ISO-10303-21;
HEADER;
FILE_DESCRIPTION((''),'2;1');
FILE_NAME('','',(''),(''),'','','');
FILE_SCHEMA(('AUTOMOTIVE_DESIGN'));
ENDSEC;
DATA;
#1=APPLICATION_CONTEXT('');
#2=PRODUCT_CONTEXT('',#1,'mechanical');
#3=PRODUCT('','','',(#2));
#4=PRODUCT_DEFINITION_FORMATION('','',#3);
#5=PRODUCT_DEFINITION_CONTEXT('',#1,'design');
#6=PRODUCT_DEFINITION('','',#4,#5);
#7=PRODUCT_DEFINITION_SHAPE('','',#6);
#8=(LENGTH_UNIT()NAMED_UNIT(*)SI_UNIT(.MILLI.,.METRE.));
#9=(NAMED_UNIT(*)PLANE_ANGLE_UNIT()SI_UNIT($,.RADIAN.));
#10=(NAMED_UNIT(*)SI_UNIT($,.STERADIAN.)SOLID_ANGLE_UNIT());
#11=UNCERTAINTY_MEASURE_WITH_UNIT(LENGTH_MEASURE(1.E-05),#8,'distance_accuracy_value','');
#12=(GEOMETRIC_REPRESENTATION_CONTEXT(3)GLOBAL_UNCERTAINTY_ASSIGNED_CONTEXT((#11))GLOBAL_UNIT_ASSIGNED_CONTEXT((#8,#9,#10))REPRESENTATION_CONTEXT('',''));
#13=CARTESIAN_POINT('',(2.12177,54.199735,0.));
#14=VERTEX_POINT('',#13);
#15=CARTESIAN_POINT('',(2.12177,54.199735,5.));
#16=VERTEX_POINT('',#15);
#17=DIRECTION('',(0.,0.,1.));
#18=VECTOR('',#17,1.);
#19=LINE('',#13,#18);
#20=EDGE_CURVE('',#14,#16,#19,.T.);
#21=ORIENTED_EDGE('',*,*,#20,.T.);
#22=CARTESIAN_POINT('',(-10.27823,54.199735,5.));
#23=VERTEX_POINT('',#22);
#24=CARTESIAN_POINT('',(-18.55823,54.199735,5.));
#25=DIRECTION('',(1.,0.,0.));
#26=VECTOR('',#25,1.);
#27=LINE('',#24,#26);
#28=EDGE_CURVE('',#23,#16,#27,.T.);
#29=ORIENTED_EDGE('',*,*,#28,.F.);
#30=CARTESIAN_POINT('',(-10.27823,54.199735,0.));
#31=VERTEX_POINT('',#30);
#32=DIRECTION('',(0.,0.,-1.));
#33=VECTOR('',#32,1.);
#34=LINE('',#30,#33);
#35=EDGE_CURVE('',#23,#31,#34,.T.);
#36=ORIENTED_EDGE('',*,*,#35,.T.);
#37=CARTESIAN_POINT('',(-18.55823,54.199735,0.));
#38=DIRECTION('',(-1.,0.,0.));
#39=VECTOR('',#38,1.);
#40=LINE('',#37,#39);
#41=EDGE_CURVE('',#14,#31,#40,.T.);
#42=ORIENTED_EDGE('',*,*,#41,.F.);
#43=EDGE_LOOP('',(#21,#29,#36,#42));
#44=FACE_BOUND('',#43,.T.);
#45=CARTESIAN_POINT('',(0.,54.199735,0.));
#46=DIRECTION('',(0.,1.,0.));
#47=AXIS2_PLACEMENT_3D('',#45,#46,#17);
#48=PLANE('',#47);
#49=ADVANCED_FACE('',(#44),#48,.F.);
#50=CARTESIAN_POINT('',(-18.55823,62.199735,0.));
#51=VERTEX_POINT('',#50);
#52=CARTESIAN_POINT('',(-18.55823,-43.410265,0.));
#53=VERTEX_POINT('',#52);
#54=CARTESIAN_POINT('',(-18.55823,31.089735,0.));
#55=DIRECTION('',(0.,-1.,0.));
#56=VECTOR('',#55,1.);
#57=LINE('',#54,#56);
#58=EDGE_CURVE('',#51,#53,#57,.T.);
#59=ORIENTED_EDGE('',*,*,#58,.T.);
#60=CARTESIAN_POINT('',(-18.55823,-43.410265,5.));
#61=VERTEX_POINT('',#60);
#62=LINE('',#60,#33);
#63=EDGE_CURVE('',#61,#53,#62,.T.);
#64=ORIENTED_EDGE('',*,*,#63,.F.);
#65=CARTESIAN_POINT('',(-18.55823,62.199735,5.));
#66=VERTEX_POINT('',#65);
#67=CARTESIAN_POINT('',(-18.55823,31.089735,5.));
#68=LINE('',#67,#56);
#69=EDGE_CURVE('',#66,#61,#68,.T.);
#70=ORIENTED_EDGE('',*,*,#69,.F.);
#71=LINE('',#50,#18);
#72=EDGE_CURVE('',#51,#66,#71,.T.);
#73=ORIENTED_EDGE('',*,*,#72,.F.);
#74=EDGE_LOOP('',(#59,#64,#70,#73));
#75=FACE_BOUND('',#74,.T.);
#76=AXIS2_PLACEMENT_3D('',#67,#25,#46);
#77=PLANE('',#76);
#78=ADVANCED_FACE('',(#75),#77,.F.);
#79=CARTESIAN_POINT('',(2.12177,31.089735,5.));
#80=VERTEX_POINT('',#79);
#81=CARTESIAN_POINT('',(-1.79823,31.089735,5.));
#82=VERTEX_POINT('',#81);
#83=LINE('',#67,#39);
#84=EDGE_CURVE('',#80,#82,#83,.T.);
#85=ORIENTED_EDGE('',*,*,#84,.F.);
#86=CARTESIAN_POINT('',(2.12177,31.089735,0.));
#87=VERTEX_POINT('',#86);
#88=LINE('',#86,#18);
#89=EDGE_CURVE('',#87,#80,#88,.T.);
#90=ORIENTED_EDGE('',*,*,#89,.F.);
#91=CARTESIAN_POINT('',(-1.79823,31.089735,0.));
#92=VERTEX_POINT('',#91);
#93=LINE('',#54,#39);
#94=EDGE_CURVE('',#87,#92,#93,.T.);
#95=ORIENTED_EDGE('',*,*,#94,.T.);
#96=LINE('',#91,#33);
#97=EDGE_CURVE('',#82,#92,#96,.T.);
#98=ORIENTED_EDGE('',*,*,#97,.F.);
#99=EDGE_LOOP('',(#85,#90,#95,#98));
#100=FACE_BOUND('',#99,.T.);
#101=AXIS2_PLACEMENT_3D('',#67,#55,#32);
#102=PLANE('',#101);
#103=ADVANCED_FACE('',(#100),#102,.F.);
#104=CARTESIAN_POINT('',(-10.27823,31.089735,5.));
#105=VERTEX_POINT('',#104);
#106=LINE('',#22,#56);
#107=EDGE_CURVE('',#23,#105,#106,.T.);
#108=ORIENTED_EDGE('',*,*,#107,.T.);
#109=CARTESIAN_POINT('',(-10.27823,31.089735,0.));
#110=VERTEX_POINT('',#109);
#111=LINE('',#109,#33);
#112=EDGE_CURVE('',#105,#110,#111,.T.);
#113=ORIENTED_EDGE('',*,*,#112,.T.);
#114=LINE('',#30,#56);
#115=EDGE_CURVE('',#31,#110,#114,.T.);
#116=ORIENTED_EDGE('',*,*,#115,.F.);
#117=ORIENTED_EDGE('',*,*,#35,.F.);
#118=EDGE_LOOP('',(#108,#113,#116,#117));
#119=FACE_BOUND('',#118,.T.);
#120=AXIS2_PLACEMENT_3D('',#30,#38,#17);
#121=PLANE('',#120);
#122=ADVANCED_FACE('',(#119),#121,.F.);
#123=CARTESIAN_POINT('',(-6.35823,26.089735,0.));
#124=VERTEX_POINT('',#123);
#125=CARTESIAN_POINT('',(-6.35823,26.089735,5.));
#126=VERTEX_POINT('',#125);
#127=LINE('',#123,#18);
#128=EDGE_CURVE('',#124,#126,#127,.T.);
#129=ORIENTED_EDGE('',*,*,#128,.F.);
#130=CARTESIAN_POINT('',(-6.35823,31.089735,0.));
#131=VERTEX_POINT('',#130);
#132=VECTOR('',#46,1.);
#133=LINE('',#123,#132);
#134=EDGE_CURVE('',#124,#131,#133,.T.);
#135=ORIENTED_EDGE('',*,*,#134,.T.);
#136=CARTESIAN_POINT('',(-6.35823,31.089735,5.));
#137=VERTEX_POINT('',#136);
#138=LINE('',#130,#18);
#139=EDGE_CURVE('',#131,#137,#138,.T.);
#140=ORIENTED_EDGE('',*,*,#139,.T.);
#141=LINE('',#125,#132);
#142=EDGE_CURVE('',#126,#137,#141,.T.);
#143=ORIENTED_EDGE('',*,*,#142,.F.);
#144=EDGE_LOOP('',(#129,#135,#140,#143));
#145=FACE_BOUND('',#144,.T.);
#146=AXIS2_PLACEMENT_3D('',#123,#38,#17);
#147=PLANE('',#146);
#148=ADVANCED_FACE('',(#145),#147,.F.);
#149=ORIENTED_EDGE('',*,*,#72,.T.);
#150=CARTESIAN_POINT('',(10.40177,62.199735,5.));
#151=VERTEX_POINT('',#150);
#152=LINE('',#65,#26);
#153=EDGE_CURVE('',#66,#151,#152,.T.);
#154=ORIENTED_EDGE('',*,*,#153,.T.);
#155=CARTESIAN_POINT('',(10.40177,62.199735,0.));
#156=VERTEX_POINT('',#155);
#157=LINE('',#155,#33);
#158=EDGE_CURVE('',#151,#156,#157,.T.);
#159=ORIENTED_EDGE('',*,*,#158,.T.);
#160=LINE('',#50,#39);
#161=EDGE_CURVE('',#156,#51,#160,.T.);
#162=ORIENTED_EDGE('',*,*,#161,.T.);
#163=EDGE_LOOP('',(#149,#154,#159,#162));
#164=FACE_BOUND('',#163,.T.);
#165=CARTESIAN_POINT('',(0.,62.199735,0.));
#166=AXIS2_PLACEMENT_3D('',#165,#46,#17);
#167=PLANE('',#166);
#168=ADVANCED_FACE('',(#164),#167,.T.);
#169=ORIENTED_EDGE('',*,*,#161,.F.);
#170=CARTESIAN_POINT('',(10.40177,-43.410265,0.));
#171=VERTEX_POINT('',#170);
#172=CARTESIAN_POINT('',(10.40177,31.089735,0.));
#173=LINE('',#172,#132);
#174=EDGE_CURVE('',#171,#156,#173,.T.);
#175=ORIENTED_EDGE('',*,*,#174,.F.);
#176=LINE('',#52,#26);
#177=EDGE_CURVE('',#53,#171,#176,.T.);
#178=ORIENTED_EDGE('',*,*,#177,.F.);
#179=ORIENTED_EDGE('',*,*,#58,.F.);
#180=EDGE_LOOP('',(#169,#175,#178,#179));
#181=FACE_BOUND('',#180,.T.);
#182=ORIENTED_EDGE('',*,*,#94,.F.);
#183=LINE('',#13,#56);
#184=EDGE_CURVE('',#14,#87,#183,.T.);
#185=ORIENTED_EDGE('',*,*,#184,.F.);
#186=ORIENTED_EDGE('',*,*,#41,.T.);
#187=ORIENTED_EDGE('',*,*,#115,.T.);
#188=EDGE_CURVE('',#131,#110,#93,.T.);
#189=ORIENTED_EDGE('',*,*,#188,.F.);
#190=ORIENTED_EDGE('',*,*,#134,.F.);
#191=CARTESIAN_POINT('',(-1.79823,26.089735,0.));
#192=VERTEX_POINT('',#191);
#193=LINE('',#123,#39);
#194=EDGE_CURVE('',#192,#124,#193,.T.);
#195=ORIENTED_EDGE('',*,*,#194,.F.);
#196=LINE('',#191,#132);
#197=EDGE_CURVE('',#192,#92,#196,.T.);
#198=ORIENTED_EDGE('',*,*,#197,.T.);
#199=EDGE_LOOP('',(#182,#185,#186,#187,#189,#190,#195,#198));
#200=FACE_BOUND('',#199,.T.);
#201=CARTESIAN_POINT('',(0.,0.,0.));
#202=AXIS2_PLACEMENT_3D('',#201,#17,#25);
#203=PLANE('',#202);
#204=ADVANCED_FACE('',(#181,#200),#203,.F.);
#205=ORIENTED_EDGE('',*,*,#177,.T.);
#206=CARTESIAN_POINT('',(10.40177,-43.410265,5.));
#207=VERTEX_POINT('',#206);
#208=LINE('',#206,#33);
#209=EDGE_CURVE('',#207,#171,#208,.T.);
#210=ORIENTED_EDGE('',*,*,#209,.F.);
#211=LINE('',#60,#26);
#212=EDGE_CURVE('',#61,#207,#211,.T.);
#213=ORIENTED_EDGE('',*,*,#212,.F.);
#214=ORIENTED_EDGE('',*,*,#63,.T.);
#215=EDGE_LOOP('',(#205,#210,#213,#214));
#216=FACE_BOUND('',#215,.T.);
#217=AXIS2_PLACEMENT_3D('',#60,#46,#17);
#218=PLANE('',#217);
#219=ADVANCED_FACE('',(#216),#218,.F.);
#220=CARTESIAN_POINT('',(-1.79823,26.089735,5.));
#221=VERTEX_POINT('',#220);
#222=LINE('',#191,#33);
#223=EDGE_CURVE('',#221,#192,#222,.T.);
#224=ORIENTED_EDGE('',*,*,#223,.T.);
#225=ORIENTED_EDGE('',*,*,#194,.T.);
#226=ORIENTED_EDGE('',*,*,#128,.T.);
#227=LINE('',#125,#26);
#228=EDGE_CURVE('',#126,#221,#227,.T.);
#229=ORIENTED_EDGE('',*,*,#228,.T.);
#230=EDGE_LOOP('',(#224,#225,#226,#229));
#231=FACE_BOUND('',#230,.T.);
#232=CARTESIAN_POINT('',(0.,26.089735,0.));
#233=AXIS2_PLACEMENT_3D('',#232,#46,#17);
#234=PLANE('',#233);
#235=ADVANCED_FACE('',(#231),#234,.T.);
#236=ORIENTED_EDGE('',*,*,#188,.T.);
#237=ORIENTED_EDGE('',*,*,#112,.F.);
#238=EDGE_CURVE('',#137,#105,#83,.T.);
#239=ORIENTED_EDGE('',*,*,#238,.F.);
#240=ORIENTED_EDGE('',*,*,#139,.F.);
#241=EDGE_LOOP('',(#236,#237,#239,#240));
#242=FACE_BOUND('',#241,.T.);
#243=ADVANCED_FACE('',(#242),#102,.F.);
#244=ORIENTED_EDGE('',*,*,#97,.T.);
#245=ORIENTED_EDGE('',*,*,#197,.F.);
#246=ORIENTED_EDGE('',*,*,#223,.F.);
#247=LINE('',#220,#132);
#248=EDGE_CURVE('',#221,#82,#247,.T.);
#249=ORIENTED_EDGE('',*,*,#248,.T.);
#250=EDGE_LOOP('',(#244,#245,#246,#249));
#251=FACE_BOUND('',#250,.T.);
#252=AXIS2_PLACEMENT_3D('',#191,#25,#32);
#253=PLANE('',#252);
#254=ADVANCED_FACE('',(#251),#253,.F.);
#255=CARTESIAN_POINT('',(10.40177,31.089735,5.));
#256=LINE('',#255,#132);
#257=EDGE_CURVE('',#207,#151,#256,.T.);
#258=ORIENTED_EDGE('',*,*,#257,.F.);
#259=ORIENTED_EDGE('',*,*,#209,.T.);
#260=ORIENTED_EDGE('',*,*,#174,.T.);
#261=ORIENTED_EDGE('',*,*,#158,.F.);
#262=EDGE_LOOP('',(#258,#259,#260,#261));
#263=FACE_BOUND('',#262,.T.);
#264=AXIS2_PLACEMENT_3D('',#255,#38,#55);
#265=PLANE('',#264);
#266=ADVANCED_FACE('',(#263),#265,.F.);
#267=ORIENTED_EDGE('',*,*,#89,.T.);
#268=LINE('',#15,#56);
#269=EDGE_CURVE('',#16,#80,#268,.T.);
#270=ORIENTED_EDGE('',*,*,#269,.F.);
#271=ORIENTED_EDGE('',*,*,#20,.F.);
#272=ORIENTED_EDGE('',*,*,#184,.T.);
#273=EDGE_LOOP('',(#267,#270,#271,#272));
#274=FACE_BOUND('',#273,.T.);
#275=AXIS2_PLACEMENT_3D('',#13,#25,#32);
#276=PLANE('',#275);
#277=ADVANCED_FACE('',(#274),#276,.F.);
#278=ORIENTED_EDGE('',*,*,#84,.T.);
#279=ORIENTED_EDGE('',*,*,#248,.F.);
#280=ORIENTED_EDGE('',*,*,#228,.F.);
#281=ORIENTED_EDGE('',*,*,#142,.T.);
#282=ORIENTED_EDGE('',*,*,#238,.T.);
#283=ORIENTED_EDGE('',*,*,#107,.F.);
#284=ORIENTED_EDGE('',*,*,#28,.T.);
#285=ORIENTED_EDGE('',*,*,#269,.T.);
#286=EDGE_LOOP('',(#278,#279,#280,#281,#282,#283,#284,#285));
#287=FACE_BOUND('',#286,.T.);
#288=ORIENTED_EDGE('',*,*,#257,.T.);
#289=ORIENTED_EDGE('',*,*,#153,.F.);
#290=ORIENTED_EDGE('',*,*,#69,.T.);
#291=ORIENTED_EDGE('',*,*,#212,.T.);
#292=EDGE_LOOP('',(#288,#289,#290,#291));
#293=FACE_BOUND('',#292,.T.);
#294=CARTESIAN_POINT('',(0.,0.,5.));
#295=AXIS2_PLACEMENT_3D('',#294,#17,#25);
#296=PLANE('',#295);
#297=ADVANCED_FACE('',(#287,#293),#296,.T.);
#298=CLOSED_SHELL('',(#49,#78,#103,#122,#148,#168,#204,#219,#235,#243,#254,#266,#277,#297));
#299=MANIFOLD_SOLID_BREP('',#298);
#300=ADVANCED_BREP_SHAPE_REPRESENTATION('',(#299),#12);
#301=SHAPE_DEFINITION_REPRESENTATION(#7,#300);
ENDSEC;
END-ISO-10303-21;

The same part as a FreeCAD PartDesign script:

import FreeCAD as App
import Part
import Sketcher

V = App.Vector
Q = App.Units.Quantity


def add_polygon(sketch, points):
    """Adds a closed chain of lines whose ends are joined by coincident constraints."""
    first, n = sketch.GeometryCount, len(points)
    for a, b in zip(points, points[1:] + points[:1]):
        sketch.addGeometry(Part.LineSegment(App.Vector(*a, 0), App.Vector(*b, 0)), False)
    for i in range(n):
        sketch.addConstraint(Sketcher.Constraint("Coincident", first + i, 2, first + (i + 1) % n, 1))

doc = App.newDocument("Part")
body = doc.addObject("PartDesign::Body", "Body")

# Sketch on XY plane
sketch1 = body.newObject("Sketcher::SketchObject", "Sketch")
sketch1.AttachmentSupport = (doc.getObject("XY_Plane"), [""])
sketch1.MapMode = "FlatFace"
add_polygon(sketch1, [(-19, 31), (-19, -43), (10, -43), (10, 31)])  # lines 0-3
sketch1.addConstraint(Sketcher.Constraint("Vertical", 0))
sketch1.addConstraint(Sketcher.Constraint("Horizontal", 1))
sketch1.addConstraint(Sketcher.Constraint("Vertical", 2))
sketch1.addConstraint(Sketcher.Constraint("Horizontal", 3))
sketch1.addConstraint(Sketcher.Constraint("DistanceY", 0, 2, 0, 1, Q("74.5 mm")))
sketch1.addConstraint(Sketcher.Constraint("DistanceX", 1, 1, 1, 2, Q("28.96 mm")))
sketch1.addConstraint(Sketcher.Constraint("DistanceX", 0, 2, -1, 1, Q("18.55823 mm")))
sketch1.addConstraint(Sketcher.Constraint("DistanceY", 0, 2, -1, 1, Q("43.410265 mm")))
pad1 = body.newObject("PartDesign::Pad", "Pad")
pad1.Profile = sketch1
pad1.Length = 5

# Sketch on XZ plane
sketch2 = body.newObject("Sketcher::SketchObject", "Sketch001")
sketch2.AttachmentSupport = (doc.getObject("XZ_Plane"), [""])
sketch2.MapMode = "FlatFace"
sketch2.AttachmentOffset = App.Placement(V(0, 0, -31.089735), App.Rotation())
add_polygon(sketch2, [(-19, 0), (-19, 5), (-10, 5), (-10, 0)])  # lines 0-3
add_polygon(sketch2, [(2, 0), (2, 5), (10, 5), (10, 0)])  # lines 4-7
sketch2.addConstraint(Sketcher.Constraint("Vertical", 0))
sketch2.addConstraint(Sketcher.Constraint("Horizontal", 1))
sketch2.addConstraint(Sketcher.Constraint("Vertical", 2))
sketch2.addConstraint(Sketcher.Constraint("Horizontal", 3))
sketch2.addConstraint(Sketcher.Constraint("Vertical", 4))
sketch2.addConstraint(Sketcher.Constraint("Horizontal", 5))
sketch2.addConstraint(Sketcher.Constraint("Vertical", 6))
sketch2.addConstraint(Sketcher.Constraint("Horizontal", 7))
sketch2.addConstraint(Sketcher.Constraint("PointOnObject", 2, 2, -1))
sketch2.addConstraint(Sketcher.Constraint("PointOnObject", 6, 2, -1))
sketch2.addConstraint(Sketcher.Constraint("Horizontal", 1, 2, 4, 2))
sketch2.addConstraint(Sketcher.Constraint("Equal", 3, 5))
sketch2.addConstraint(Sketcher.Constraint("DistanceY", 0, 1, 0, 2, Q("5 mm")))
sketch2.addConstraint(Sketcher.Constraint("DistanceX", 1, 1, 1, 2, Q("8.28 mm")))
sketch2.addConstraint(Sketcher.Constraint("DistanceX", 1, 2, 4, 2, Q("12.4 mm")))
sketch2.addConstraint(Sketcher.Constraint("DistanceX", 0, 2, -1, 1, Q("18.55823 mm")))
pad2 = body.newObject("PartDesign::Pad", "Pad001")
pad2.Profile = sketch2
pad2.Length = 23.11
pad2.Reversed = True

# Sketch on XZ plane
sketch3 = body.newObject("Sketcher::SketchObject", "Sketch002")
sketch3.AttachmentSupport = (doc.getObject("XZ_Plane"), [""])
sketch3.MapMode = "FlatFace"
sketch3.AttachmentOffset = App.Placement(V(0, 0, -54.199735), App.Rotation())
add_polygon(sketch3, [(-19, 0), (-19, 5), (10, 5), (10, 0)])  # lines 0-3
sketch3.addConstraint(Sketcher.Constraint("Vertical", 0))
sketch3.addConstraint(Sketcher.Constraint("Horizontal", 1))
sketch3.addConstraint(Sketcher.Constraint("Vertical", 2))
sketch3.addConstraint(Sketcher.Constraint("Horizontal", 3))
sketch3.addConstraint(Sketcher.Constraint("PointOnObject", 2, 2, -1))
sketch3.addConstraint(Sketcher.Constraint("DistanceY", 0, 1, 0, 2, Q("5 mm")))
sketch3.addConstraint(Sketcher.Constraint("DistanceX", 1, 1, 1, 2, Q("28.96 mm")))
sketch3.addConstraint(Sketcher.Constraint("DistanceX", 0, 2, -1, 1, Q("18.55823 mm")))
pad3 = body.newObject("PartDesign::Pad", "Pad002")
pad3.Profile = sketch3
pad3.Length = 8
pad3.Reversed = True

# Sketch on XZ plane
sketch4 = body.newObject("Sketcher::SketchObject", "Sketch003")
sketch4.AttachmentSupport = (doc.getObject("XZ_Plane"), [""])
sketch4.MapMode = "FlatFace"
sketch4.AttachmentOffset = App.Placement(V(0, 0, -31.089735), App.Rotation())
add_polygon(sketch4, [(-6.4, 0), (-6.4, 5), (-1.8, 5), (-1.8, 0)])  # lines 0-3
sketch4.addConstraint(Sketcher.Constraint("Vertical", 0))
sketch4.addConstraint(Sketcher.Constraint("Horizontal", 1))
sketch4.addConstraint(Sketcher.Constraint("Vertical", 2))
sketch4.addConstraint(Sketcher.Constraint("Horizontal", 3))
sketch4.addConstraint(Sketcher.Constraint("PointOnObject", 2, 2, -1))
sketch4.addConstraint(Sketcher.Constraint("DistanceY", 0, 1, 0, 2, Q("5 mm")))
sketch4.addConstraint(Sketcher.Constraint("DistanceX", 1, 1, 1, 2, Q("4.56 mm")))
sketch4.addConstraint(Sketcher.Constraint("DistanceX", 0, 2, -1, 1, Q("6.35823 mm")))
pocket1 = body.newObject("PartDesign::Pocket", "Pocket")
pocket1.Profile = sketch4
pocket1.Length = 5
pocket1.Reversed = True

doc.recompute()
